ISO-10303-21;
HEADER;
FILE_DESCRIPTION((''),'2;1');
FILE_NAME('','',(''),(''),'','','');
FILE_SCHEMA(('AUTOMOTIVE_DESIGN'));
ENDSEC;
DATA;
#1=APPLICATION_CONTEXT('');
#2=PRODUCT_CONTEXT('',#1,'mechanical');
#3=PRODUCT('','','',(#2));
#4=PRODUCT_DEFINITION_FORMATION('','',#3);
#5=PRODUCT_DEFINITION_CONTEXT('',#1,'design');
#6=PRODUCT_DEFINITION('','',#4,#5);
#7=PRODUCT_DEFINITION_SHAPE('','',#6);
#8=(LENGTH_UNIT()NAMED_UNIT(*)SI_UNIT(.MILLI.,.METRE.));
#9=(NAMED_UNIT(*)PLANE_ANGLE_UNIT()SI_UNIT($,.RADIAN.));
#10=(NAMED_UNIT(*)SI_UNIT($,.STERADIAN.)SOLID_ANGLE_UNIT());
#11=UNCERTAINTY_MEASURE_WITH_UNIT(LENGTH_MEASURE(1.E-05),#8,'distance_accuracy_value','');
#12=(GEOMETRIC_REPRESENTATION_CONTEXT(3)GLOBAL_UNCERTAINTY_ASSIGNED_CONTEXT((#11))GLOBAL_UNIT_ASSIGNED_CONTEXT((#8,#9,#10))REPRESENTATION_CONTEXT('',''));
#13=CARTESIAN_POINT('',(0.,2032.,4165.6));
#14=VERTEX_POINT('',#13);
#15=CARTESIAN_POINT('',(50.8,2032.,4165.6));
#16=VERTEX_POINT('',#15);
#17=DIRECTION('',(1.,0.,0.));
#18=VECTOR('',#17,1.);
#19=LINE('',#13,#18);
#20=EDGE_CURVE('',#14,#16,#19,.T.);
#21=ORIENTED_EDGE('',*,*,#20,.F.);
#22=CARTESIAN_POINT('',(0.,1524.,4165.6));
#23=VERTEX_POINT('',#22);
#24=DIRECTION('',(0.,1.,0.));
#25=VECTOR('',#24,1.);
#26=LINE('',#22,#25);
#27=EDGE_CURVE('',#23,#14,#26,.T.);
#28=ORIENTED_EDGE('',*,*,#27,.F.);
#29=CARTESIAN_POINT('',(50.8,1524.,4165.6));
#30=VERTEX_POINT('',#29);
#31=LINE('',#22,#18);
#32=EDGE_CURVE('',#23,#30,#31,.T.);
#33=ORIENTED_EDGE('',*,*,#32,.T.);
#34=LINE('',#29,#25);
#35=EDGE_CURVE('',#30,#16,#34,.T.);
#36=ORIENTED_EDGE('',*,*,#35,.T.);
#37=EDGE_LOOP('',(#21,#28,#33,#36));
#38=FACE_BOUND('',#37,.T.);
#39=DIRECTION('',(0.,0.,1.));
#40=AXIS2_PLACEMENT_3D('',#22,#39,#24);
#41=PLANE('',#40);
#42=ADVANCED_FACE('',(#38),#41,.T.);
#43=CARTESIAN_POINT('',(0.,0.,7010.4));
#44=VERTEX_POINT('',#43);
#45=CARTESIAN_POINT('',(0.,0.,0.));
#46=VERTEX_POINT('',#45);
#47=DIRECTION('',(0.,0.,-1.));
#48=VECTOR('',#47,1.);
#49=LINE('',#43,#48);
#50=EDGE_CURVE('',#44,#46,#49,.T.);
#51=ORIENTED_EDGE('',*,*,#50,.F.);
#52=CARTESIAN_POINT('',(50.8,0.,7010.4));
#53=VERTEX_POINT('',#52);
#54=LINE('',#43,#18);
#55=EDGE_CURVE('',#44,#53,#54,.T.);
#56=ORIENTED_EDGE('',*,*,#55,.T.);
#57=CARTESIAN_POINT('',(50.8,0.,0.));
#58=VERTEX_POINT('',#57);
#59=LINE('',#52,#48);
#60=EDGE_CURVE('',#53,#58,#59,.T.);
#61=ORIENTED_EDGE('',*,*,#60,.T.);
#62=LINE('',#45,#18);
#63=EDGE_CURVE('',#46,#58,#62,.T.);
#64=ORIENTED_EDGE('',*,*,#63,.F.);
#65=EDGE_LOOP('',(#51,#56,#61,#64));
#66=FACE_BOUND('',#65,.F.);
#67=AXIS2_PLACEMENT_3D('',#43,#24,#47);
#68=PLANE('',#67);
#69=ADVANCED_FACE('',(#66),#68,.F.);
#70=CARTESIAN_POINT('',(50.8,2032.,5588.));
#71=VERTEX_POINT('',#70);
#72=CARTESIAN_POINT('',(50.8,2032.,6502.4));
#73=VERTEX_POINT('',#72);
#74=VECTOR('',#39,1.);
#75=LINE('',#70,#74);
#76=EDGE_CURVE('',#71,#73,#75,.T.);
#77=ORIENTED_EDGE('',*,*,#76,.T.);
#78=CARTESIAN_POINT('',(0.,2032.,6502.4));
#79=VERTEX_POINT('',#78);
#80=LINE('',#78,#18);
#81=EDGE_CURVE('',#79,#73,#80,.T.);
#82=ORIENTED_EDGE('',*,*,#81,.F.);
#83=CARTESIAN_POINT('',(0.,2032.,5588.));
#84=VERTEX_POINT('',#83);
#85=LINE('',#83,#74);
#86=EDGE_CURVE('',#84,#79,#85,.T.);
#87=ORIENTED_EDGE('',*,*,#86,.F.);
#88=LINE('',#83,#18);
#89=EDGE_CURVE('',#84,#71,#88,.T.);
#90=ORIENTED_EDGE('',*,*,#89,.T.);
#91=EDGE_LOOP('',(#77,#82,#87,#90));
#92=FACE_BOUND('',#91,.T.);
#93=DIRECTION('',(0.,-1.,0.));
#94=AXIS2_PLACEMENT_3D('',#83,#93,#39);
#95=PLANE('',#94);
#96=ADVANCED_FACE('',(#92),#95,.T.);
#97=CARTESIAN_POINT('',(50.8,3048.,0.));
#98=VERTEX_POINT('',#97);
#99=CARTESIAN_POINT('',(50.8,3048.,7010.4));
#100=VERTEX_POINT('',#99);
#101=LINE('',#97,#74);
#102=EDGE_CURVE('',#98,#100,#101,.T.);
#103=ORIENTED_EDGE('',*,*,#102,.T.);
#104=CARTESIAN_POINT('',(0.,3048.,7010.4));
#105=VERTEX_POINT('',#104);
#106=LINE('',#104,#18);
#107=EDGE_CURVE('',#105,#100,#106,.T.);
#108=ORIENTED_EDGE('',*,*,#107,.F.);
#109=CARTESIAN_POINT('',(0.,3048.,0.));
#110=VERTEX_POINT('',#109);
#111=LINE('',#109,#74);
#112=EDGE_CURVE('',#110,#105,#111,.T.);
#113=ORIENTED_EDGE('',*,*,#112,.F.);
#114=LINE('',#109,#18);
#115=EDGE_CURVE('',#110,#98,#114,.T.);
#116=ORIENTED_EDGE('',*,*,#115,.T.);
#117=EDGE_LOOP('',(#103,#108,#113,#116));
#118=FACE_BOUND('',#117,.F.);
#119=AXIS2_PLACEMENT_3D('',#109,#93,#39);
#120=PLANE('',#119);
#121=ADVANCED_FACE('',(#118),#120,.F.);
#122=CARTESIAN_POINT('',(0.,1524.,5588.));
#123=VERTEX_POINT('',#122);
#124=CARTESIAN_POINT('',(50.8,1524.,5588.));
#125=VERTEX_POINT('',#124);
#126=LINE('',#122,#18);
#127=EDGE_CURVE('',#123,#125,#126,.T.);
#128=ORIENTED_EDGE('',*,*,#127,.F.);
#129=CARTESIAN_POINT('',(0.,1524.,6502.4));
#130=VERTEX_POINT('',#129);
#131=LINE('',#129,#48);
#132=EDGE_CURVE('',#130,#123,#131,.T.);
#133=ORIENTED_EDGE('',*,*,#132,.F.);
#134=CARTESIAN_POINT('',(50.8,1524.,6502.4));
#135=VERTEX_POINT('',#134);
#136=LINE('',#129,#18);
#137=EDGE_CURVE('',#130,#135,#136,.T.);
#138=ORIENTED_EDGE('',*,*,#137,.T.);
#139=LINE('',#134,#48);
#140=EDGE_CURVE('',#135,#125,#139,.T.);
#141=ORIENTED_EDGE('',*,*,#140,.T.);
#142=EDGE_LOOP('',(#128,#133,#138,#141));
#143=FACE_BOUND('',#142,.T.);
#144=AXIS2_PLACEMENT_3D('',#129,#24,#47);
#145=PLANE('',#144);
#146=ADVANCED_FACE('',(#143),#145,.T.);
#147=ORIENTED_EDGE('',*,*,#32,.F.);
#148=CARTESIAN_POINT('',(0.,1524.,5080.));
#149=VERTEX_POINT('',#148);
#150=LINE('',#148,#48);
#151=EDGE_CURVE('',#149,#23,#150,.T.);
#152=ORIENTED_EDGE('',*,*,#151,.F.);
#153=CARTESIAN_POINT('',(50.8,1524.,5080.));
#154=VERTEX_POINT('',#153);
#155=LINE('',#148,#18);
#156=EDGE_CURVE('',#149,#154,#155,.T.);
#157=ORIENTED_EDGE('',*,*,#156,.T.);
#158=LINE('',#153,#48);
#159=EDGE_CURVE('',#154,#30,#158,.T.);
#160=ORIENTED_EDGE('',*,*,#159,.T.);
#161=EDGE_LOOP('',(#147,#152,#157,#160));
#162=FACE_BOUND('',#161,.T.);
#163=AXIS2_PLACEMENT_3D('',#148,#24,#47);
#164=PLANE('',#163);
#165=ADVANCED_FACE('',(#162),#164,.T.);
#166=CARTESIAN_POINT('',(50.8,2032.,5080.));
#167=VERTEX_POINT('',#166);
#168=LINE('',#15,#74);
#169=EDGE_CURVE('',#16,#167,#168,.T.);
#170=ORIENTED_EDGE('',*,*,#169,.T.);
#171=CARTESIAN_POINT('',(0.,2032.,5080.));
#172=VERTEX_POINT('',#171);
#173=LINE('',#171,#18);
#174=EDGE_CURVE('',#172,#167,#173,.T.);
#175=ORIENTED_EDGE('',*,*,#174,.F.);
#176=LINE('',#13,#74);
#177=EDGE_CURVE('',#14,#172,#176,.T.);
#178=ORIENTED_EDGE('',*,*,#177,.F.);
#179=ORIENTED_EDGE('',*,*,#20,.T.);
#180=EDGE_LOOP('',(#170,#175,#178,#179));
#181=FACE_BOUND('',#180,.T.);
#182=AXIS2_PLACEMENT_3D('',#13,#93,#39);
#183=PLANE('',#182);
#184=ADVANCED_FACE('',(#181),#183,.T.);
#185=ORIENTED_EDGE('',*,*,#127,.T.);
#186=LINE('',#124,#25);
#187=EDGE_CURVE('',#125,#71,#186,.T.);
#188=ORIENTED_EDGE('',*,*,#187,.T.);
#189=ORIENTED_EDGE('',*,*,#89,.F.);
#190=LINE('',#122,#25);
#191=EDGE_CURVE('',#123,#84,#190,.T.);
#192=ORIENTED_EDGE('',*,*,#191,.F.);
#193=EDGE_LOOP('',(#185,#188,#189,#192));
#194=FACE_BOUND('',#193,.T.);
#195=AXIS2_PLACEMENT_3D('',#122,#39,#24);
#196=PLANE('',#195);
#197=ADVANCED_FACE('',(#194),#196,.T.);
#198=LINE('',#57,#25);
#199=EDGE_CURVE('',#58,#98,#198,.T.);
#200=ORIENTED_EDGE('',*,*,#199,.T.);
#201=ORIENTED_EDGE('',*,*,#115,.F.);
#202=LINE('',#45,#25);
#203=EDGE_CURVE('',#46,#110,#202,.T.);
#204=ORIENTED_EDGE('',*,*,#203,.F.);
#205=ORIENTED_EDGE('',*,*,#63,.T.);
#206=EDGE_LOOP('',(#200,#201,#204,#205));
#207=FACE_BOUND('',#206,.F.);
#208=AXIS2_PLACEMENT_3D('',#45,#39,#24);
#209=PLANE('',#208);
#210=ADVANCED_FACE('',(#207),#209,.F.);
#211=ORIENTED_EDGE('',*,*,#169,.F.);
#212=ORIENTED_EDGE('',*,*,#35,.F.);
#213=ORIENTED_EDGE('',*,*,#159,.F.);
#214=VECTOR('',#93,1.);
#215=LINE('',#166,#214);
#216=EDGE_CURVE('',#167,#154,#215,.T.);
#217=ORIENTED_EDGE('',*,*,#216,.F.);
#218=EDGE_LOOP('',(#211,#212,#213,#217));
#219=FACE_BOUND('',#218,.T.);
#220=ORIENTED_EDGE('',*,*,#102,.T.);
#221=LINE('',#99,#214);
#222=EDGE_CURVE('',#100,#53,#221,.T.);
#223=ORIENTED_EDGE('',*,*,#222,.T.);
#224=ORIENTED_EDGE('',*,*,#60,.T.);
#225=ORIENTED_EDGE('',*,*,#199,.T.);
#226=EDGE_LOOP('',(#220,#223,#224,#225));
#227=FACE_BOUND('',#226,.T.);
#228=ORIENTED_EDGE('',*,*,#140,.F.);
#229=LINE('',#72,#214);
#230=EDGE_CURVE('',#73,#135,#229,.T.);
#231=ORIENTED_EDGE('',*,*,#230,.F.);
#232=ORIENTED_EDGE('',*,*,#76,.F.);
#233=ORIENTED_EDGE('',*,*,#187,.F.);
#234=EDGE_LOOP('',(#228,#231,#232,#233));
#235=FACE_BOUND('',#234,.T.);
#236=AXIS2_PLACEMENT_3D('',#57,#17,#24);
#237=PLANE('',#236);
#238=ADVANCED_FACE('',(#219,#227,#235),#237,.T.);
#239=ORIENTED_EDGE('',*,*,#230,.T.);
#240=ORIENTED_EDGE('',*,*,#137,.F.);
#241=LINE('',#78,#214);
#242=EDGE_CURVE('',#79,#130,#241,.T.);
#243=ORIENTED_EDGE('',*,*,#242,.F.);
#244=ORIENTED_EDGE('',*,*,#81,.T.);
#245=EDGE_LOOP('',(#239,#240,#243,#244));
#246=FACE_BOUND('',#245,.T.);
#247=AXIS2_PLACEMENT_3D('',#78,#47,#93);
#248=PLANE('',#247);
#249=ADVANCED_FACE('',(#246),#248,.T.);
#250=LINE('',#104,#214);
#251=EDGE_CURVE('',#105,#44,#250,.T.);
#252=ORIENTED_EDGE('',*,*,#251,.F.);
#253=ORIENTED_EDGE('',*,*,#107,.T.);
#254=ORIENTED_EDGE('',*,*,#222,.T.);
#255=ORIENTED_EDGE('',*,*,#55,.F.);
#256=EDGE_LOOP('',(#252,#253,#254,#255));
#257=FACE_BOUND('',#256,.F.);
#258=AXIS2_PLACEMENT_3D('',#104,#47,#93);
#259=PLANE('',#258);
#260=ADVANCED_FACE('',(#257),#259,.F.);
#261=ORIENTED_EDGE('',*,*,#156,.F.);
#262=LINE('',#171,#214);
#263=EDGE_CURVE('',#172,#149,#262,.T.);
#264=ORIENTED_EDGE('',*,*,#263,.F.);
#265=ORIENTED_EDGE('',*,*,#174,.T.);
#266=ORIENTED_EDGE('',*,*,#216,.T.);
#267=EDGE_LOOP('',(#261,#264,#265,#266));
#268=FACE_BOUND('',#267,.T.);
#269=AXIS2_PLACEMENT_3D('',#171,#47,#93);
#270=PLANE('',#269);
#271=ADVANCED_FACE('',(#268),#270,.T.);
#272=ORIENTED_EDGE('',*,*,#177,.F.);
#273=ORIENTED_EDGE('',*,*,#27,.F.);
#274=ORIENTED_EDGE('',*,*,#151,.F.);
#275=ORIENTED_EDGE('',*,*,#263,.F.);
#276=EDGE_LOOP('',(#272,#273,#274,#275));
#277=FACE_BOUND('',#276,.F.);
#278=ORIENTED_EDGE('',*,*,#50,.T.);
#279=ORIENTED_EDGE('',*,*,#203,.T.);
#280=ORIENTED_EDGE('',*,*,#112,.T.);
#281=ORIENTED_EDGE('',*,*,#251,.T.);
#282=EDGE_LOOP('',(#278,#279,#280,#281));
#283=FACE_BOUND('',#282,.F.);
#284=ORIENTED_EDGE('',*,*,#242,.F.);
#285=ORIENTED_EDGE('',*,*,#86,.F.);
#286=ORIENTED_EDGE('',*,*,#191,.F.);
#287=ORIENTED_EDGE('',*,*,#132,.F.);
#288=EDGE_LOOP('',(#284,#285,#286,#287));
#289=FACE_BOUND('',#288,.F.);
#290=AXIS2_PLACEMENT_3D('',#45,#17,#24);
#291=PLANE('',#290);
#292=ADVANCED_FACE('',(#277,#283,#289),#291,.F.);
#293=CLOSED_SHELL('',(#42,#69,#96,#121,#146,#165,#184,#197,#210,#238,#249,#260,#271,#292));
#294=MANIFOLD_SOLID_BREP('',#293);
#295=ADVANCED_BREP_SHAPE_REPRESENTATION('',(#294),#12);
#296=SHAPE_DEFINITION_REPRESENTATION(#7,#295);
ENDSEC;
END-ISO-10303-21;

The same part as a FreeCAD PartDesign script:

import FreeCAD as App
import Part
import Sketcher

V = App.Vector
Q = App.Units.Quantity

doc = App.newDocument("Part")
body = doc.addObject("PartDesign::Body", "Body")

# Sketch on YZ plane
sketch1 = doc.addObject("Sketcher::SketchObject", "Sketch")
body.addObject(sketch1)
sketch1.AttachmentSupport = (doc.YZ_Plane, [""])
sketch1.MapMode = "FlatFace"
sketch1.addGeometry([
    Part.LineSegment(V(0, 7010, 0), V(0, 0, 0)),  # 0
    Part.LineSegment(V(0, 0, 0), V(3048, 0, 0)),  # 1
    Part.LineSegment(V(3048, 0, 0), V(3048, 7010, 0)),  # 2
    Part.LineSegment(V(3048, 7010, 0), V(0, 7010, 0)),  # 3
    Part.LineSegment(V(1524, 5080, 0), V(2032, 5080, 0)),  # 4
    Part.LineSegment(V(2032, 5080, 0), V(2032, 4166, 0)),  # 5
    Part.LineSegment(V(2032, 4166, 0), V(1524, 4166, 0)),  # 6
    Part.LineSegment(V(1524, 4166, 0), V(1524, 5080, 0)),  # 7
    Part.LineSegment(V(1524, 6502, 0), V(2032, 6502, 0)),  # 8
    Part.LineSegment(V(2032, 6502, 0), V(2032, 5588, 0)),  # 9
    Part.LineSegment(V(2032, 5588, 0), V(1524, 5588, 0)),  # 10
    Part.LineSegment(V(1524, 5588, 0), V(1524, 6502, 0)),  # 11
], False)
sketch1.addConstraint([
    Sketcher.Constraint("Coincident", 0, 2, 1, 1),
    Sketcher.Constraint("Coincident", 1, 2, 2, 1),
    Sketcher.Constraint("Coincident", 2, 2, 3, 1),
    Sketcher.Constraint("Coincident", 3, 2, 0, 1),
    Sketcher.Constraint("Coincident", 4, 2, 5, 1),
    Sketcher.Constraint("Coincident", 5, 2, 6, 1),
    Sketcher.Constraint("Coincident", 6, 2, 7, 1),
    Sketcher.Constraint("Coincident", 7, 2, 4, 1),
    Sketcher.Constraint("Coincident", 8, 2, 9, 1),
    Sketcher.Constraint("Coincident", 9, 2, 10, 1),
    Sketcher.Constraint("Coincident", 10, 2, 11, 1),
    Sketcher.Constraint("Coincident", 11, 2, 8, 1),
    Sketcher.Constraint("Vertical", 0),
    Sketcher.Constraint("Horizontal", 1),
    Sketcher.Constraint("Vertical", 2),
    Sketcher.Constraint("Horizontal", 3),
    Sketcher.Constraint("Horizontal", 4),
    Sketcher.Constraint("Vertical", 5),
    Sketcher.Constraint("Horizontal", 6),
    Sketcher.Constraint("Vertical", 7),
    Sketcher.Constraint("Horizontal", 8),
    Sketcher.Constraint("Vertical", 9),
    Sketcher.Constraint("Horizontal", 10),
    Sketcher.Constraint("Vertical", 11),
    Sketcher.Constraint("Coincident", 0, 2, -1, 1),
    Sketcher.Constraint("Vertical", 5, 2, 8, 2),
    Sketcher.Constraint("Vertical", 7, 2, 10, 2),
    Sketcher.Constraint("Equal", 7, 9),
    Sketcher.Constraint("DistanceX", 1, 1, 1, 2, Q("120 in")),
    Sketcher.Constraint("DistanceX", 4, 1, 4, 2, Q("20 in")),
    Sketcher.Constraint("DistanceY", 0, 2, 0, 1, Q("276 in")),
    Sketcher.Constraint("DistanceY", 5, 2, 5, 1, Q("36 in")),
    Sketcher.Constraint("DistanceX", -1, 1, 6, 2, Q("60 in")),
    Sketcher.Constraint("DistanceY", 8, 2, 2, 2, Q("20 in")),
    Sketcher.Constraint("DistanceY", 4, 2, 9, 2, Q("20 in")),
])
pad1 = doc.addObject("PartDesign::Pad", "Pad")
body.addObject(pad1)
pad1.Profile = sketch1
pad1.Length = Q("2 in")

doc.recompute()
